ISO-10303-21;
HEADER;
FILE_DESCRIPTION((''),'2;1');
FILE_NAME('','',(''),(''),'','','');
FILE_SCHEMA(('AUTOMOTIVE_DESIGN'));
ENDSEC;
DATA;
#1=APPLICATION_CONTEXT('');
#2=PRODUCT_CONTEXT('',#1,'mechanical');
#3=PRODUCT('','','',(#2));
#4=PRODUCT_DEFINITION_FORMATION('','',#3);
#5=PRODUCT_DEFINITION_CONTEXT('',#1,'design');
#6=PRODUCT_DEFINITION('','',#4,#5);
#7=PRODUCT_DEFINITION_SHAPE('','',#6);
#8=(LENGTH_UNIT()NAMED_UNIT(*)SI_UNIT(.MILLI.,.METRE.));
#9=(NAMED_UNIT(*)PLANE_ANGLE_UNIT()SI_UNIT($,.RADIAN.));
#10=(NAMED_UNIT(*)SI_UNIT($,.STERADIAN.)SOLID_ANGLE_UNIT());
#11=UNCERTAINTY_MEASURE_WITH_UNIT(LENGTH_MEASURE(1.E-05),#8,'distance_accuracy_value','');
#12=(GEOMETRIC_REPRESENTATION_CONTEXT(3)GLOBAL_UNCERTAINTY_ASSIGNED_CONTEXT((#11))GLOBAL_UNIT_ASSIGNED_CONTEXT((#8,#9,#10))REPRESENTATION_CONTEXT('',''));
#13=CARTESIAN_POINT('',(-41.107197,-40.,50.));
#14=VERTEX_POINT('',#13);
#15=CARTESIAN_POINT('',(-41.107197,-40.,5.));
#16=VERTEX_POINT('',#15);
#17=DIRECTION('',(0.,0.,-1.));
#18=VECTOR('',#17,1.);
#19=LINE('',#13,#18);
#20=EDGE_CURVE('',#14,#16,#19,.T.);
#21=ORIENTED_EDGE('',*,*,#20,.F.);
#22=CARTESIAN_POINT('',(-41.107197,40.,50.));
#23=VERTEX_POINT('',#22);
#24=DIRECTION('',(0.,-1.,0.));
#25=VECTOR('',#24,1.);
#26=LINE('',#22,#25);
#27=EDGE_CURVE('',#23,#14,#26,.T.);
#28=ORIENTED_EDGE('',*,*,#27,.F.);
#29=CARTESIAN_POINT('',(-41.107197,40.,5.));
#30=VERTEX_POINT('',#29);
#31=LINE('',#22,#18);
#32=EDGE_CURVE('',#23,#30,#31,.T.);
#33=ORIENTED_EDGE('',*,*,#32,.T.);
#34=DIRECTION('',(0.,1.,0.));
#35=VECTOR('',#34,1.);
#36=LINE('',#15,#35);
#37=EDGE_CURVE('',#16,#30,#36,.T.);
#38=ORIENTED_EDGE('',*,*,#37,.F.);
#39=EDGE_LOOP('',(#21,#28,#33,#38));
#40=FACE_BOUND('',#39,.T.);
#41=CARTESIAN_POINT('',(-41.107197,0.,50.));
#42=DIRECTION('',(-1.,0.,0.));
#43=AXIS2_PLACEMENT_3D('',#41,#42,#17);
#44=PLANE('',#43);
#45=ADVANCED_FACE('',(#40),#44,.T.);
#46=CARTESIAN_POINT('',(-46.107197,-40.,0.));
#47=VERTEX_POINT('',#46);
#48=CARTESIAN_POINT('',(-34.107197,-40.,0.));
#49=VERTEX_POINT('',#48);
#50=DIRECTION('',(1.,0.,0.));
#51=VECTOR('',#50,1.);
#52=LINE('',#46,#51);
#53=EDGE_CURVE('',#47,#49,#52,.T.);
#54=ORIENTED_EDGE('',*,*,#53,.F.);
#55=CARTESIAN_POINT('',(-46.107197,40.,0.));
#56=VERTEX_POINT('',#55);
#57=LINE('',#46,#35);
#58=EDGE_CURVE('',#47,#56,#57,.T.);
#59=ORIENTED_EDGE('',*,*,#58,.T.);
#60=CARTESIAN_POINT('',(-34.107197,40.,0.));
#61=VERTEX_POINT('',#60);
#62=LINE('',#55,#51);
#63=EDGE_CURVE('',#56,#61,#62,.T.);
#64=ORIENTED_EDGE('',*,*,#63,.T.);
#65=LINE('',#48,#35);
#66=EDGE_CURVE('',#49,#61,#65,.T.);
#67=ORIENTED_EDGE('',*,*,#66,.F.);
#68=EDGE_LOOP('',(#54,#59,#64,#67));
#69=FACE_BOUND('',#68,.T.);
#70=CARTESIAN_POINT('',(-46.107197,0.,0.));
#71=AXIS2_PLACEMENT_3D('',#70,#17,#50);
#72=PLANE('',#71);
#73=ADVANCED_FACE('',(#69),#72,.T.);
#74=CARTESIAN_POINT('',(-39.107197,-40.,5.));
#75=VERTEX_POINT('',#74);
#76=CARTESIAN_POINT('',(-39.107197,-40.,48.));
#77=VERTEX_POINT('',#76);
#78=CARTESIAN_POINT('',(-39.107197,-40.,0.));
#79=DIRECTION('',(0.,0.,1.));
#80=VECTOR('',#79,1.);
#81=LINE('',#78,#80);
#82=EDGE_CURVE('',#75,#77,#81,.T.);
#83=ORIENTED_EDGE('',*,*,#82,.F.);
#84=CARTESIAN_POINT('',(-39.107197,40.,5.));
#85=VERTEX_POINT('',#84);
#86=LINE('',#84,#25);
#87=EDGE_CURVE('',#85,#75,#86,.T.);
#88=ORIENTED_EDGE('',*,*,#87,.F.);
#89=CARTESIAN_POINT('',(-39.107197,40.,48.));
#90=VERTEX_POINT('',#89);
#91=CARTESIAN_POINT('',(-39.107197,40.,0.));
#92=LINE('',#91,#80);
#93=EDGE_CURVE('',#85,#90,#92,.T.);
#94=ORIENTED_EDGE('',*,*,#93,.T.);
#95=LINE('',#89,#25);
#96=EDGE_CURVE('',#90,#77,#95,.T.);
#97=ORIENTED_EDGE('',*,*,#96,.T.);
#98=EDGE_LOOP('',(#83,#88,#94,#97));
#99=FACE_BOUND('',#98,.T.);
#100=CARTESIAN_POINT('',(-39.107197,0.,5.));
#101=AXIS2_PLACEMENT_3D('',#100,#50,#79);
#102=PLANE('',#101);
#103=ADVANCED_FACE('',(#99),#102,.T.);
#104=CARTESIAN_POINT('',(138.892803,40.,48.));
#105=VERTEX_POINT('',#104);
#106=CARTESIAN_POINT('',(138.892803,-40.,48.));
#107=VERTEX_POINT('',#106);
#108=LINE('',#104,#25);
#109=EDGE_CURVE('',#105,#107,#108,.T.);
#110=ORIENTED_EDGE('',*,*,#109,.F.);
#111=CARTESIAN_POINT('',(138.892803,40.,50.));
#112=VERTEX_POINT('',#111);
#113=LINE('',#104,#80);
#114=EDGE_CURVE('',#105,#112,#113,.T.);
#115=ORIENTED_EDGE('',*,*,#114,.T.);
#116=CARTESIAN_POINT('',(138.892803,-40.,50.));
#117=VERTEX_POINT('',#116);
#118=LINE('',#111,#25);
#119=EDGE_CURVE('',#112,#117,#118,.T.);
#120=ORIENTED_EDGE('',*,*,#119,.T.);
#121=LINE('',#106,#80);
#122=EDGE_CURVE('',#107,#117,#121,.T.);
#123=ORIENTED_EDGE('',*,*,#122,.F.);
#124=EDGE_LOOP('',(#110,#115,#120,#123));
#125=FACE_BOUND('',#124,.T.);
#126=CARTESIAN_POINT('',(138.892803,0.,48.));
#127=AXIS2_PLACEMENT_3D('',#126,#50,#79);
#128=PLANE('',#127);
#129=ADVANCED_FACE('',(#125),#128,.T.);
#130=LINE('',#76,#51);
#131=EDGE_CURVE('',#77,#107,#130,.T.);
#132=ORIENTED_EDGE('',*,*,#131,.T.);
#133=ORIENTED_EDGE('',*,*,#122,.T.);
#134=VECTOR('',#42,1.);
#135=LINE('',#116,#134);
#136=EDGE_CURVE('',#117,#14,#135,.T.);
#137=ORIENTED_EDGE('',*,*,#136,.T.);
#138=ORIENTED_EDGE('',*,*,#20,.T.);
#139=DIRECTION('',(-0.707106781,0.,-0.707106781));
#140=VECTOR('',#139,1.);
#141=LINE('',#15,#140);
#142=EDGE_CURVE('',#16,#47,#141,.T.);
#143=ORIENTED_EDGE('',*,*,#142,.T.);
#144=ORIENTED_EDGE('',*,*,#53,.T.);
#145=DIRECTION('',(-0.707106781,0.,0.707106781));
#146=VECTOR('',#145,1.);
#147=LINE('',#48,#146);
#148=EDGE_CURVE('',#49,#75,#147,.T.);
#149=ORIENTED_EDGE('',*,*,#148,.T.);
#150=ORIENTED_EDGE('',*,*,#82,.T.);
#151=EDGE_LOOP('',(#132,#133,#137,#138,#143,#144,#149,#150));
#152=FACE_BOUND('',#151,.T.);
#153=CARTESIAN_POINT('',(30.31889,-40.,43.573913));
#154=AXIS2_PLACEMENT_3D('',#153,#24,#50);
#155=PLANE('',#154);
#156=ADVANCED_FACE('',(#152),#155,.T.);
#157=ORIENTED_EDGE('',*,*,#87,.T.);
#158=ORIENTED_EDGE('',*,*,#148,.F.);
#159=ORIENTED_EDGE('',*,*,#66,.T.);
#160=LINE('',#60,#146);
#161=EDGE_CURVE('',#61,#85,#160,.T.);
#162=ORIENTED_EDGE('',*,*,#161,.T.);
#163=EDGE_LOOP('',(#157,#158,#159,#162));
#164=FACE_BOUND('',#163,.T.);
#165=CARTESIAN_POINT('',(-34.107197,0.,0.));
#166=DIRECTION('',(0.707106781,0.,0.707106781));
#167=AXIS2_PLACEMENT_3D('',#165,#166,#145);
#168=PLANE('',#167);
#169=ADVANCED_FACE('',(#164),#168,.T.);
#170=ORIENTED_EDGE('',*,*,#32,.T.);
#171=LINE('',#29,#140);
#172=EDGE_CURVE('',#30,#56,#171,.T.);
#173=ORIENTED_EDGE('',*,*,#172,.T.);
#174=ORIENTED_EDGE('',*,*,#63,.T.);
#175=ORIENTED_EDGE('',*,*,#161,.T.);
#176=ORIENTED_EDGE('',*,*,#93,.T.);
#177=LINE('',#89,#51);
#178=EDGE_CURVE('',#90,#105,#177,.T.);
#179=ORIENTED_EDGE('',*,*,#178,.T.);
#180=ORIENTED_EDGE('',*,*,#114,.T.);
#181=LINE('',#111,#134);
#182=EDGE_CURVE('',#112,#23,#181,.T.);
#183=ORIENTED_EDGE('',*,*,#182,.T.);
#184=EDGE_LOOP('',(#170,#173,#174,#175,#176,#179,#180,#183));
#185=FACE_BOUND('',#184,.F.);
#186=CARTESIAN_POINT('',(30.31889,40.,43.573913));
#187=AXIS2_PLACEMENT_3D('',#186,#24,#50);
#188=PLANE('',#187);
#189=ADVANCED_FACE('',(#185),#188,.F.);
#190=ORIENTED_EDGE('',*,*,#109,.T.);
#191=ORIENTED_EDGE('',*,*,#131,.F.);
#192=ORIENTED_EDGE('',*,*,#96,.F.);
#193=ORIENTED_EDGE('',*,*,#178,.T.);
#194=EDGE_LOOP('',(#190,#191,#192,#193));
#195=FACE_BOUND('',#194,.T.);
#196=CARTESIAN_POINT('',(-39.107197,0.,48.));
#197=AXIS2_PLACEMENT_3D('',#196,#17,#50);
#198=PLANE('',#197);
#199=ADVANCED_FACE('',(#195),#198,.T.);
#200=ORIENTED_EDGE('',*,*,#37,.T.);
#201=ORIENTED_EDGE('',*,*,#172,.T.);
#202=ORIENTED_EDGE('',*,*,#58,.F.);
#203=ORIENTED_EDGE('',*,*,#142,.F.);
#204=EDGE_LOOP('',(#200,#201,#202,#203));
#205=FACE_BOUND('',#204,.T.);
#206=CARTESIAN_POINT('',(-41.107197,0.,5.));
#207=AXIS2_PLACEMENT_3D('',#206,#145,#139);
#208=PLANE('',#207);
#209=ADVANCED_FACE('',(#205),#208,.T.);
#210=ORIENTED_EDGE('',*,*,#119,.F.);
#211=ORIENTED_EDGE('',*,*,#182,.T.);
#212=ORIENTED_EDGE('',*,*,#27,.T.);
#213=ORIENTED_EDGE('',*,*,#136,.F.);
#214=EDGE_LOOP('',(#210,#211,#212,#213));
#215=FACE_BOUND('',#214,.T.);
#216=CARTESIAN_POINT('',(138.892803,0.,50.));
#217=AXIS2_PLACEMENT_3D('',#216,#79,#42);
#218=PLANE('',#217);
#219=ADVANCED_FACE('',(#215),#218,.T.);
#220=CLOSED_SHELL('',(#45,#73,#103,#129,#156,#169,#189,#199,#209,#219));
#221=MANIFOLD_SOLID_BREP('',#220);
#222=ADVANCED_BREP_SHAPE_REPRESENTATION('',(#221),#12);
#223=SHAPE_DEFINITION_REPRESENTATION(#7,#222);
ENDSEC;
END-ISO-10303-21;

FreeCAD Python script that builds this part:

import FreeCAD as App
import Part
import Sketcher
from FreeCAD import Vector
Q = App.Units.Quantity

doc = App.newDocument("Part")
body = doc.addObject("PartDesign::Body", "Body")

sketch1 = doc.addObject("Sketcher::SketchObject", "Sketch")
body.addObject(sketch1)
sketch1.AttachmentSupport = (doc.XZ_Plane, [""])
sketch1.MapMode = "FlatFace"
sketch1.addGeometry([
    Part.LineSegment(Vector(-34.1, 0, 0), Vector(-39.1, 5, 0)),
    Part.LineSegment(Vector(-39.1, 5, 0), Vector(-39.1, 48, 0)),
    Part.LineSegment(Vector(-39.1, 48, 0), Vector(138.9, 48, 0)),
    Part.LineSegment(Vector(138.9, 48, 0), Vector(138.9, 50, 0)),
    Part.LineSegment(Vector(138.9, 50, 0), Vector(-41.1, 50, 0)),
    Part.LineSegment(Vector(-41.1, 50, 0), Vector(-41.1, 5, 0)),
    Part.LineSegment(Vector(-41.1, 5, 0), Vector(-46.1, 0, 0)),
    Part.LineSegment(Vector(-46.1, 0, 0), Vector(-34.1, 0, 0)),
], False)
sketch1.addConstraint([
    Sketcher.Constraint("Coincident", 0, 2, 1, 1),
    Sketcher.Constraint("Coincident", 1, 2, 2, 1),
    Sketcher.Constraint("Coincident", 2, 2, 3, 1),
    Sketcher.Constraint("Coincident", 3, 2, 4, 1),
    Sketcher.Constraint("Coincident", 4, 2, 5, 1),
    Sketcher.Constraint("Coincident", 5, 2, 6, 1),
    Sketcher.Constraint("Coincident", 6, 2, 7, 1),
    Sketcher.Constraint("Coincident", 7, 2, 0, 1),
    Sketcher.Constraint("Vertical", 1),
    Sketcher.Constraint("Horizontal", 2),
    Sketcher.Constraint("Vertical", 3),
    Sketcher.Constraint("Horizontal", 4),
    Sketcher.Constraint("Vertical", 5),
    Sketcher.Constraint("Horizontal", 7),
    Sketcher.Constraint("PointOnObject", 6, 2, -1),
    Sketcher.Constraint("Perpendicular", 0, 6),
    Sketcher.Constraint("Horizontal", 0, 2, 5, 2),
    Sketcher.Constraint("Equal", 0, 6),
    Sketcher.Constraint("DistanceX", 2, 1, 2, 2, Q("178 mm")),
    Sketcher.Constraint("DistanceX", 4, 2, 4, 1, Q("180 mm")),
    Sketcher.Constraint("DistanceX", 7, 1, 7, 2, Q("12 mm")),
    Sketcher.Constraint("DistanceY", 1, 1, 1, 2, Q("43 mm")),
    Sketcher.Constraint("DistanceY", 3, 1, 3, 2, Q("2 mm")),
    Sketcher.Constraint("DistanceX", 0, 2, -1, 1, Q("39.107197 mm")),
])
pad1 = doc.addObject("PartDesign::Pad", "Pad")
body.addObject(pad1)
pad1.Profile = sketch1
pad1.Length = 80
pad1.Midplane = True

doc.recompute()
